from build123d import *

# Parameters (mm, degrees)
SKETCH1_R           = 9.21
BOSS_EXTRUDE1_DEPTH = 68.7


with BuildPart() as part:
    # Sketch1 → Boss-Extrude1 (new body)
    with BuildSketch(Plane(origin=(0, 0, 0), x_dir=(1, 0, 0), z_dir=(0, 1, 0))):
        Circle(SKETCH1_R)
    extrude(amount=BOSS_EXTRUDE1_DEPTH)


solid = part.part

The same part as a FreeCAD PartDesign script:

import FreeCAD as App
import Part
import Sketcher

V = App.Vector
Q = App.Units.Quantity

doc = App.newDocument("Part")
params = doc.addObject("Spreadsheet::Sheet", "Params")
for row, (alias, value) in enumerate([
    ("sketch1_diameter", "18.42 mm"),
    ("pad1_length", "68.7 mm"),
], start=1):
    params.set(f"A{row}", alias)
    params.set(f"B{row}", "=" + value)
    params.setAlias(f"B{row}", alias)

body = doc.addObject("PartDesign::Body", "Body")

# Sketch on XZ plane
sketch1 = doc.addObject("Sketcher::SketchObject", "Sketch")
body.addObject(sketch1)
sketch1.AttachmentSupport = (doc.XZ_Plane, [""])
sketch1.MapMode = "FlatFace"
sketch1.addGeometry(Part.Circle(V(0, 0, 0), V(0, 0, 1), 9.21), False)
sketch1.addConstraint([
    Sketcher.Constraint("Coincident", 0, 3, -1, 1),
    Sketcher.Constraint("Diameter", 0, Q("18.42 mm")),
])
sketch1.setExpression("Constraints[1]", "Params.sketch1_diameter")
pad1 = doc.addObject("PartDesign::Pad", "Pad")
body.addObject(pad1)
pad1.Profile = sketch1
pad1.setExpression("Length", "Params.pad1_length")
pad1.Reversed = True

doc.recompute()
